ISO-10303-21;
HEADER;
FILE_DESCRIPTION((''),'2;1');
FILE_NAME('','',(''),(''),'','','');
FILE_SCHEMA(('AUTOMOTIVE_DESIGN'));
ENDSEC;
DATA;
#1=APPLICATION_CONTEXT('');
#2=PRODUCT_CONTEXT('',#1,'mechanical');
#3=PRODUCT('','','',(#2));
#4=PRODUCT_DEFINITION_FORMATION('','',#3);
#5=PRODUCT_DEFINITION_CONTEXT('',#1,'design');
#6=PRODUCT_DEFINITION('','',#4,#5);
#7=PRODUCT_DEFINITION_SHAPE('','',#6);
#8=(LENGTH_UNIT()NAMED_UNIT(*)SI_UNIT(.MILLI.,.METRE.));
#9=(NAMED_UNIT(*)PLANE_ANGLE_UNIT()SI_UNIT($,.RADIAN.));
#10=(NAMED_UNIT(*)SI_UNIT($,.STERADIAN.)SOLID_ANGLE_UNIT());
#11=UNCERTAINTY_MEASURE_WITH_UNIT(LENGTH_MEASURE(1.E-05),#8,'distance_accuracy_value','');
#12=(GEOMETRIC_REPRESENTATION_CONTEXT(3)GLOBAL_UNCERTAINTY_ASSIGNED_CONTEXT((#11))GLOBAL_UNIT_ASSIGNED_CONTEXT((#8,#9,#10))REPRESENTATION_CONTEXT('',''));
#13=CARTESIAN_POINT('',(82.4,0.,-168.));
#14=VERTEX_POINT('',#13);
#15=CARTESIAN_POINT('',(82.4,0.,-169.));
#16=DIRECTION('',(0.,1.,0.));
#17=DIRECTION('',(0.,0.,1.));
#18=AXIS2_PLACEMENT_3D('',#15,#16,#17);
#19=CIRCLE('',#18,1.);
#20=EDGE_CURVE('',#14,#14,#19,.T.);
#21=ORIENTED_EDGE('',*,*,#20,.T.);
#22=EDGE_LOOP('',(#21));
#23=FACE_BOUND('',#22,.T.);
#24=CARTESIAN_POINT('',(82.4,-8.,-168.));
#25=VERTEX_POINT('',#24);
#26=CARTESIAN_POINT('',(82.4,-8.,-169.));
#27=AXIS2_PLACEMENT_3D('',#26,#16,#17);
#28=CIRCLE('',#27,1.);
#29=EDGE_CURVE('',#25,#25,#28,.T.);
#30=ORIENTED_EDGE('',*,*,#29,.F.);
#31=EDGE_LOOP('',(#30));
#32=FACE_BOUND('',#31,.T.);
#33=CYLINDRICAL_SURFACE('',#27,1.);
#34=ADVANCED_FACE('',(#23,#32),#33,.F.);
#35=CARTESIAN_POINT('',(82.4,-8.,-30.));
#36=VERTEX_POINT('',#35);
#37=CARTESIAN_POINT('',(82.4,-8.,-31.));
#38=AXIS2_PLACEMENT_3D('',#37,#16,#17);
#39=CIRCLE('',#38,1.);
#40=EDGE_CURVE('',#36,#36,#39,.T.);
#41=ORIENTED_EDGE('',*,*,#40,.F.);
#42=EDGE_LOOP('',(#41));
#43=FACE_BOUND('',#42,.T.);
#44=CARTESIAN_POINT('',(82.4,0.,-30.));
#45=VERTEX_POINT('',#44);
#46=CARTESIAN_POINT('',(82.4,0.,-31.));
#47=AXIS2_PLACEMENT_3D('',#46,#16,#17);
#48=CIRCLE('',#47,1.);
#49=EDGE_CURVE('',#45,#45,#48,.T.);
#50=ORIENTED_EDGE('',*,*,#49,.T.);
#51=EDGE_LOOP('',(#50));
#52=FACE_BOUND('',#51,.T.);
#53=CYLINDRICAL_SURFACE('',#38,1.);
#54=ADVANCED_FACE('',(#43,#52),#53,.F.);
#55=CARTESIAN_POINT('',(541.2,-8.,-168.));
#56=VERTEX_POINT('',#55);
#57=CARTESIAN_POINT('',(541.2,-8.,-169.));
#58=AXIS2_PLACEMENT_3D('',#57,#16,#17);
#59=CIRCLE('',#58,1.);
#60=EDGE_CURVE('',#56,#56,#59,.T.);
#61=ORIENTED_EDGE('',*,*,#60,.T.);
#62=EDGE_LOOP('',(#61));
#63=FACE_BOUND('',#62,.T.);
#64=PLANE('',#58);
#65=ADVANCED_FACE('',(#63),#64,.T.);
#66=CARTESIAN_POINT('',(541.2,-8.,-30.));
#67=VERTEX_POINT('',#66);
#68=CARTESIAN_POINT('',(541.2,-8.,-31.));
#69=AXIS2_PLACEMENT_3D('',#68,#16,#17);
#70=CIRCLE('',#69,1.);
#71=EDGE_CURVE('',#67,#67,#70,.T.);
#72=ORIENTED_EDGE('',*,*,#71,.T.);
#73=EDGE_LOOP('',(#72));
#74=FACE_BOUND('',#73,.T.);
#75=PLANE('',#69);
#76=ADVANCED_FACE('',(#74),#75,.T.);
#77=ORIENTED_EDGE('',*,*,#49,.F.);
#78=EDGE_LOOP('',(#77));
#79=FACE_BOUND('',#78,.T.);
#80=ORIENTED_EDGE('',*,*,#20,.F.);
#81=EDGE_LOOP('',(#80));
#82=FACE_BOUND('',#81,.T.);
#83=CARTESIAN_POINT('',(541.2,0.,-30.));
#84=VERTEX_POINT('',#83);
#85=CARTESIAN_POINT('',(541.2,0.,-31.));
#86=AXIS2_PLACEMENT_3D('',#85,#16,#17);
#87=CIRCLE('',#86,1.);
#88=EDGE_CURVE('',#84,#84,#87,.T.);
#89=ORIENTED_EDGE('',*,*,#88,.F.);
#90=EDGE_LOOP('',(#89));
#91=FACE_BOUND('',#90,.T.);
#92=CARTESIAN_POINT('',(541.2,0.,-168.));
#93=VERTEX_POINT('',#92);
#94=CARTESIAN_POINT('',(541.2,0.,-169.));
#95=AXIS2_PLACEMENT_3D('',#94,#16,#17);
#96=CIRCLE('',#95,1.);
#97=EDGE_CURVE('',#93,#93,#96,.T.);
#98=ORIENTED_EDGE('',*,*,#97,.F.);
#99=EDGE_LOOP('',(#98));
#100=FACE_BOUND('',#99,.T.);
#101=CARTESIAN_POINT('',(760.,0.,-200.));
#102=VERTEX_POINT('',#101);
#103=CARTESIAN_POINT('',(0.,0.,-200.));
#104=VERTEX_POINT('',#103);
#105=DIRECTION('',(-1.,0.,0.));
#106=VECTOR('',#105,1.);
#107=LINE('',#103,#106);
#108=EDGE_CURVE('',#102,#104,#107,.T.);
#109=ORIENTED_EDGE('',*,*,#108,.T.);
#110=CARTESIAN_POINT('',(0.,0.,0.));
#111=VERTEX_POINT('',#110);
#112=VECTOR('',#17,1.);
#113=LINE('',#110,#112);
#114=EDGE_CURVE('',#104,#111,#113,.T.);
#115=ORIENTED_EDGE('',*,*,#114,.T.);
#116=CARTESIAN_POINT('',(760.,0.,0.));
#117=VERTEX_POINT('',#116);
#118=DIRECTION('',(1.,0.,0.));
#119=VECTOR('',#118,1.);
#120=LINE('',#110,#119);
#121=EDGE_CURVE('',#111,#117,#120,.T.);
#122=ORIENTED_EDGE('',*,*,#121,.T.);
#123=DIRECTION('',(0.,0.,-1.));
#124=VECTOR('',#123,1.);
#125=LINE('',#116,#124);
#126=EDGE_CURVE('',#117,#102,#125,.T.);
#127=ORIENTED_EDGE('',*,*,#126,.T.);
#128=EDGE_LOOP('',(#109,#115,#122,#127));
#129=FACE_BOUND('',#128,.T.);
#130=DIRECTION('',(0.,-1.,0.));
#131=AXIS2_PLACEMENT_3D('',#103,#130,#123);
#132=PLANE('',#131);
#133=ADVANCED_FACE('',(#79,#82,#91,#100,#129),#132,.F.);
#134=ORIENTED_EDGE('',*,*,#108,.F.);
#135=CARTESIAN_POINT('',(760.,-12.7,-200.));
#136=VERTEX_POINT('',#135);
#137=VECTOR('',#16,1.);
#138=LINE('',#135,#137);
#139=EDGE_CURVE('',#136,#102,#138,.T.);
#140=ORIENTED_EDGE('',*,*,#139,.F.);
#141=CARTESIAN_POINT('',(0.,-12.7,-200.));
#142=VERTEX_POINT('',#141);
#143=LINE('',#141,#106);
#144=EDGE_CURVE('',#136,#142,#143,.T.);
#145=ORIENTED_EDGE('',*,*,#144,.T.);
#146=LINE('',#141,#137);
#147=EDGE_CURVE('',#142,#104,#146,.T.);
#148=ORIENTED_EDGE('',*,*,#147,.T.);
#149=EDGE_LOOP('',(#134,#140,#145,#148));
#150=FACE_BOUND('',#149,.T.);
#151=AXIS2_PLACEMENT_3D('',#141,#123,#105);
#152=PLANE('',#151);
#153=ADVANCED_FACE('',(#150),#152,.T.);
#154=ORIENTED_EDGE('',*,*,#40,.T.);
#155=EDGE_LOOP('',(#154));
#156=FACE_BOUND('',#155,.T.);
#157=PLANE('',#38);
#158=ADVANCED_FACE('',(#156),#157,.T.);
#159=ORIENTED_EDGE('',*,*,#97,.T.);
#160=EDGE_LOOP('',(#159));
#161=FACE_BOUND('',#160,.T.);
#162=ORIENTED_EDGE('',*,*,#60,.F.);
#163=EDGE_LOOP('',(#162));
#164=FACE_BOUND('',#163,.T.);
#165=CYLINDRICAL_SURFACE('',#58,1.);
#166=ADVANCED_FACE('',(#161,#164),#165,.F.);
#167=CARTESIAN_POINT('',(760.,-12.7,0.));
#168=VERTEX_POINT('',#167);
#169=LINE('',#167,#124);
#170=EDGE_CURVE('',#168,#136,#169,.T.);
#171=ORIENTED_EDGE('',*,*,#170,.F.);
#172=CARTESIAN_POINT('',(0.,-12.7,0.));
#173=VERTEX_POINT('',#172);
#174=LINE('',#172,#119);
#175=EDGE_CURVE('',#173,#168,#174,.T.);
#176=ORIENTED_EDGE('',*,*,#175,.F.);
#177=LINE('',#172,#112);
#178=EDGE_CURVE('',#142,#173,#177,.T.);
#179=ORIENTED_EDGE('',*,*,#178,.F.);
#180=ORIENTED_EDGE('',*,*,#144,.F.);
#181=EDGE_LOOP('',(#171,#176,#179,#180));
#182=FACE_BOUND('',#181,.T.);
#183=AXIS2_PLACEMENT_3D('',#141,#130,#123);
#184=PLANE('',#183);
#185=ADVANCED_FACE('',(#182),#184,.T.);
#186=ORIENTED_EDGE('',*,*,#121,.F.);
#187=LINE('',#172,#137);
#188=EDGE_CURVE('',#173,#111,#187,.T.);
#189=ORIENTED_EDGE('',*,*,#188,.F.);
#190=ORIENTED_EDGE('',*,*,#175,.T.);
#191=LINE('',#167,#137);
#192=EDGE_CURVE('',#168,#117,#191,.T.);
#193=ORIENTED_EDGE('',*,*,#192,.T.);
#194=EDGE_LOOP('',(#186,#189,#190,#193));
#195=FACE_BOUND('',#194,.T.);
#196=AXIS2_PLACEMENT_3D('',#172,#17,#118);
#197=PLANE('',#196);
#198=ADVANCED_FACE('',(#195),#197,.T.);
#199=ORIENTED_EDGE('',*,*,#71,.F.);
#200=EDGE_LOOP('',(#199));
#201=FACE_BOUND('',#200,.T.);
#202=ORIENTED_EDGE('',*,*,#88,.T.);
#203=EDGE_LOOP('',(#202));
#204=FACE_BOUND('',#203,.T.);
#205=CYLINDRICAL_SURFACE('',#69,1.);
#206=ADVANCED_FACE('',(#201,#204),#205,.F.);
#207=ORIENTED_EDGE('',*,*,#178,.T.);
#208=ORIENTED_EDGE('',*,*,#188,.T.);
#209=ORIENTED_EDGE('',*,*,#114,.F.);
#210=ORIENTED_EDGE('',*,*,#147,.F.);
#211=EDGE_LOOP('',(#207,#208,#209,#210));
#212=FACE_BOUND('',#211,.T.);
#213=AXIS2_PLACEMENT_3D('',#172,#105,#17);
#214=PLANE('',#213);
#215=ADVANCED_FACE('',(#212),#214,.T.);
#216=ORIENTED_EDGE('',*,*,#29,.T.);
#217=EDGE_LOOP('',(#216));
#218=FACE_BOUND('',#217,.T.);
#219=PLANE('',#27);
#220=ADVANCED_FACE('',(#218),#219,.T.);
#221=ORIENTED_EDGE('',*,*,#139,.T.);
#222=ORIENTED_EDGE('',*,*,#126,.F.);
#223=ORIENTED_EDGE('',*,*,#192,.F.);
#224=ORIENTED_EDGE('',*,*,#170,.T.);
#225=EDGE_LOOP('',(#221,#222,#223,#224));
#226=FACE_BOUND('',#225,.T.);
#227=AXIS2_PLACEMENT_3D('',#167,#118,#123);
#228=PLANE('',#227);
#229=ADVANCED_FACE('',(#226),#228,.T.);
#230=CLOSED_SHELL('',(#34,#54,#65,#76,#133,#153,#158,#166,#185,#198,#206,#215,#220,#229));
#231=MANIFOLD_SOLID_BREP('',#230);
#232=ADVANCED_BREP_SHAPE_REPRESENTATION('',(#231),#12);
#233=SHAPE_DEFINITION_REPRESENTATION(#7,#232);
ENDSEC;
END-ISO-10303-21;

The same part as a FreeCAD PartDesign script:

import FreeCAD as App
import Part
import Sketcher

doc = App.newDocument("Part")
body = doc.addObject("PartDesign::Body", "Body")

sketch1 = doc.addObject("Sketcher::SketchObject", "Sketch")
body.addObject(sketch1)
sketch1.AttachmentSupport = (doc.XZ_Plane, [""])
sketch1.MapMode = "FlatFace"
sketch1.addGeometry([
    Part.LineSegment(App.Vector(0, -200, 0), App.Vector(0, 0, 0)),
    Part.LineSegment(App.Vector(0, 0, 0), App.Vector(760, 0, 0)),
    Part.LineSegment(App.Vector(760, 0, 0), App.Vector(760, -200, 0)),
    Part.LineSegment(App.Vector(760, -200, 0), App.Vector(0, -200, 0)),
], False)
sketch1.addConstraint([
    Sketcher.Constraint("Coincident", 0, 2, 1, 1),
    Sketcher.Constraint("Coincident", 1, 2, 2, 1),
    Sketcher.Constraint("Coincident", 2, 2, 3, 1),
    Sketcher.Constraint("Coincident", 3, 2, 0, 1),
    Sketcher.Constraint("Vertical", 0),
    Sketcher.Constraint("Horizontal", 1),
    Sketcher.Constraint("Vertical", 2),
    Sketcher.Constraint("Horizontal", 3),
    Sketcher.Constraint("Coincident", 0, 2, -1, 1),
    Sketcher.Constraint("DistanceX", 1, 1, 1, 2, 760.0),
    Sketcher.Constraint("DistanceY", 0, 1, 0, 2, 200.0),
])
pad1 = doc.addObject("PartDesign::Pad", "Pad")
body.addObject(pad1)
pad1.Profile = sketch1
pad1.Length = 12.7

sketch2 = doc.addObject("Sketcher::SketchObject", "Sketch001")
body.addObject(sketch2)
sketch2.AttachmentSupport = (doc.XZ_Plane, [""])
sketch2.MapMode = "FlatFace"
sketch2.addGeometry([
    Part.Circle(App.Vector(82.4, -31, 0), App.Vector(0, 0, 1), 1),
    Part.Circle(App.Vector(82.4, -169, 0), App.Vector(0, 0, 1), 1),
    Part.Circle(App.Vector(541.2, -31, 0), App.Vector(0, 0, 1), 1),
    Part.Circle(App.Vector(541.2, -169, 0), App.Vector(0, 0, 1), 1),
], False)
sketch2.addConstraint([
    Sketcher.Constraint("Equal", 0, 1),
    Sketcher.Constraint("Equal", 1, 2),
    Sketcher.Constraint("Equal", 2, 3),
    Sketcher.Constraint("Horizontal", 0, 3, 2, 3),
    Sketcher.Constraint("Horizontal", 1, 3, 3, 3),
    Sketcher.Constraint("Vertical", 0, 3, 1, 3),
    Sketcher.Constraint("Vertical", 2, 3, 3, 3),
    Sketcher.Constraint("Diameter", 0, 2.0),
    Sketcher.Constraint("DistanceY", 0, 3, -1, 1, 31.0),
    Sketcher.Constraint("DistanceY", 1, 3, -1, 1, 169.0),
    Sketcher.Constraint("DistanceX", -1, 1, 0, 3, 82.4),
    Sketcher.Constraint("DistanceX", -1, 1, 2, 3, 541.2),
])
pocket1 = doc.addObject("PartDesign::Pocket", "Pocket")
body.addObject(pocket1)
pocket1.Profile = sketch2
pocket1.Length = 8
pocket1.Reversed = True

doc.recompute()
